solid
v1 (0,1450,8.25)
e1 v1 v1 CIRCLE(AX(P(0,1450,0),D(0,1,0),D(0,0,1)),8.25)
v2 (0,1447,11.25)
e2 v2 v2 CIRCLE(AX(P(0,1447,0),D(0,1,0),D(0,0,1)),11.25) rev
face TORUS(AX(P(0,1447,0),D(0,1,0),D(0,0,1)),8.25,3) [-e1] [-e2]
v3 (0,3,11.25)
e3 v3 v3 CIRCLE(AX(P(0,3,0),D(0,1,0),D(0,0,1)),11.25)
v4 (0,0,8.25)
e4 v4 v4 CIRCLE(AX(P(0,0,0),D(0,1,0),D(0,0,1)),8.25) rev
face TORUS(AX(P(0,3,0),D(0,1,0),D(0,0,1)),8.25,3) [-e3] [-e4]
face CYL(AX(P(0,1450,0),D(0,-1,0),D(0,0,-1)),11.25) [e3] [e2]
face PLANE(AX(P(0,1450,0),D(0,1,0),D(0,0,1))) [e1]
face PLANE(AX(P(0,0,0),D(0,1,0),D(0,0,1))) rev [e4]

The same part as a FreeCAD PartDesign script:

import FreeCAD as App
import Part
import Sketcher

V = App.Vector
Q = App.Units.Quantity


def edges_at(feature, points):
    """Names of the edges that pass closest to the given points."""
    edges = feature.Shape.Edges
    near = lambda p: min(range(len(edges)), key=lambda i: edges[i].distToShape(Part.Vertex(*p))[0])
    return sorted({f"Edge{near(p) + 1}" for p in points})

doc = App.newDocument("Part")
body = doc.addObject("PartDesign::Body", "Body")

sketch1 = body.newObject("Sketcher::SketchObject", "Sketch")
sketch1.AttachmentSupport = (doc.getObject("XZ_Plane"), [""])
sketch1.MapMode = "FlatFace"
sketch1.addGeometry(Part.Circle(V(0, 0, 0), V(0, 0, 1), 11.25), False)
sketch1.addConstraint([
    Sketcher.Constraint("Coincident", 0, 3, -1, 1),
    Sketcher.Constraint("Diameter", 0, Q("22.5 mm")),
])
pad1 = body.newObject("PartDesign::Pad", "Pad")
pad1.Profile = sketch1
pad1.Length = 1450
pad1.Reversed = True
doc.recompute()

fillet = body.newObject("PartDesign::Fillet", "Fillet")
fillet.Base = (pad1, edges_at(pad1, [(-11.25, 0, 0), (-11.25, 1450, 0)]))
fillet.Radius = 3

doc.recompute()
